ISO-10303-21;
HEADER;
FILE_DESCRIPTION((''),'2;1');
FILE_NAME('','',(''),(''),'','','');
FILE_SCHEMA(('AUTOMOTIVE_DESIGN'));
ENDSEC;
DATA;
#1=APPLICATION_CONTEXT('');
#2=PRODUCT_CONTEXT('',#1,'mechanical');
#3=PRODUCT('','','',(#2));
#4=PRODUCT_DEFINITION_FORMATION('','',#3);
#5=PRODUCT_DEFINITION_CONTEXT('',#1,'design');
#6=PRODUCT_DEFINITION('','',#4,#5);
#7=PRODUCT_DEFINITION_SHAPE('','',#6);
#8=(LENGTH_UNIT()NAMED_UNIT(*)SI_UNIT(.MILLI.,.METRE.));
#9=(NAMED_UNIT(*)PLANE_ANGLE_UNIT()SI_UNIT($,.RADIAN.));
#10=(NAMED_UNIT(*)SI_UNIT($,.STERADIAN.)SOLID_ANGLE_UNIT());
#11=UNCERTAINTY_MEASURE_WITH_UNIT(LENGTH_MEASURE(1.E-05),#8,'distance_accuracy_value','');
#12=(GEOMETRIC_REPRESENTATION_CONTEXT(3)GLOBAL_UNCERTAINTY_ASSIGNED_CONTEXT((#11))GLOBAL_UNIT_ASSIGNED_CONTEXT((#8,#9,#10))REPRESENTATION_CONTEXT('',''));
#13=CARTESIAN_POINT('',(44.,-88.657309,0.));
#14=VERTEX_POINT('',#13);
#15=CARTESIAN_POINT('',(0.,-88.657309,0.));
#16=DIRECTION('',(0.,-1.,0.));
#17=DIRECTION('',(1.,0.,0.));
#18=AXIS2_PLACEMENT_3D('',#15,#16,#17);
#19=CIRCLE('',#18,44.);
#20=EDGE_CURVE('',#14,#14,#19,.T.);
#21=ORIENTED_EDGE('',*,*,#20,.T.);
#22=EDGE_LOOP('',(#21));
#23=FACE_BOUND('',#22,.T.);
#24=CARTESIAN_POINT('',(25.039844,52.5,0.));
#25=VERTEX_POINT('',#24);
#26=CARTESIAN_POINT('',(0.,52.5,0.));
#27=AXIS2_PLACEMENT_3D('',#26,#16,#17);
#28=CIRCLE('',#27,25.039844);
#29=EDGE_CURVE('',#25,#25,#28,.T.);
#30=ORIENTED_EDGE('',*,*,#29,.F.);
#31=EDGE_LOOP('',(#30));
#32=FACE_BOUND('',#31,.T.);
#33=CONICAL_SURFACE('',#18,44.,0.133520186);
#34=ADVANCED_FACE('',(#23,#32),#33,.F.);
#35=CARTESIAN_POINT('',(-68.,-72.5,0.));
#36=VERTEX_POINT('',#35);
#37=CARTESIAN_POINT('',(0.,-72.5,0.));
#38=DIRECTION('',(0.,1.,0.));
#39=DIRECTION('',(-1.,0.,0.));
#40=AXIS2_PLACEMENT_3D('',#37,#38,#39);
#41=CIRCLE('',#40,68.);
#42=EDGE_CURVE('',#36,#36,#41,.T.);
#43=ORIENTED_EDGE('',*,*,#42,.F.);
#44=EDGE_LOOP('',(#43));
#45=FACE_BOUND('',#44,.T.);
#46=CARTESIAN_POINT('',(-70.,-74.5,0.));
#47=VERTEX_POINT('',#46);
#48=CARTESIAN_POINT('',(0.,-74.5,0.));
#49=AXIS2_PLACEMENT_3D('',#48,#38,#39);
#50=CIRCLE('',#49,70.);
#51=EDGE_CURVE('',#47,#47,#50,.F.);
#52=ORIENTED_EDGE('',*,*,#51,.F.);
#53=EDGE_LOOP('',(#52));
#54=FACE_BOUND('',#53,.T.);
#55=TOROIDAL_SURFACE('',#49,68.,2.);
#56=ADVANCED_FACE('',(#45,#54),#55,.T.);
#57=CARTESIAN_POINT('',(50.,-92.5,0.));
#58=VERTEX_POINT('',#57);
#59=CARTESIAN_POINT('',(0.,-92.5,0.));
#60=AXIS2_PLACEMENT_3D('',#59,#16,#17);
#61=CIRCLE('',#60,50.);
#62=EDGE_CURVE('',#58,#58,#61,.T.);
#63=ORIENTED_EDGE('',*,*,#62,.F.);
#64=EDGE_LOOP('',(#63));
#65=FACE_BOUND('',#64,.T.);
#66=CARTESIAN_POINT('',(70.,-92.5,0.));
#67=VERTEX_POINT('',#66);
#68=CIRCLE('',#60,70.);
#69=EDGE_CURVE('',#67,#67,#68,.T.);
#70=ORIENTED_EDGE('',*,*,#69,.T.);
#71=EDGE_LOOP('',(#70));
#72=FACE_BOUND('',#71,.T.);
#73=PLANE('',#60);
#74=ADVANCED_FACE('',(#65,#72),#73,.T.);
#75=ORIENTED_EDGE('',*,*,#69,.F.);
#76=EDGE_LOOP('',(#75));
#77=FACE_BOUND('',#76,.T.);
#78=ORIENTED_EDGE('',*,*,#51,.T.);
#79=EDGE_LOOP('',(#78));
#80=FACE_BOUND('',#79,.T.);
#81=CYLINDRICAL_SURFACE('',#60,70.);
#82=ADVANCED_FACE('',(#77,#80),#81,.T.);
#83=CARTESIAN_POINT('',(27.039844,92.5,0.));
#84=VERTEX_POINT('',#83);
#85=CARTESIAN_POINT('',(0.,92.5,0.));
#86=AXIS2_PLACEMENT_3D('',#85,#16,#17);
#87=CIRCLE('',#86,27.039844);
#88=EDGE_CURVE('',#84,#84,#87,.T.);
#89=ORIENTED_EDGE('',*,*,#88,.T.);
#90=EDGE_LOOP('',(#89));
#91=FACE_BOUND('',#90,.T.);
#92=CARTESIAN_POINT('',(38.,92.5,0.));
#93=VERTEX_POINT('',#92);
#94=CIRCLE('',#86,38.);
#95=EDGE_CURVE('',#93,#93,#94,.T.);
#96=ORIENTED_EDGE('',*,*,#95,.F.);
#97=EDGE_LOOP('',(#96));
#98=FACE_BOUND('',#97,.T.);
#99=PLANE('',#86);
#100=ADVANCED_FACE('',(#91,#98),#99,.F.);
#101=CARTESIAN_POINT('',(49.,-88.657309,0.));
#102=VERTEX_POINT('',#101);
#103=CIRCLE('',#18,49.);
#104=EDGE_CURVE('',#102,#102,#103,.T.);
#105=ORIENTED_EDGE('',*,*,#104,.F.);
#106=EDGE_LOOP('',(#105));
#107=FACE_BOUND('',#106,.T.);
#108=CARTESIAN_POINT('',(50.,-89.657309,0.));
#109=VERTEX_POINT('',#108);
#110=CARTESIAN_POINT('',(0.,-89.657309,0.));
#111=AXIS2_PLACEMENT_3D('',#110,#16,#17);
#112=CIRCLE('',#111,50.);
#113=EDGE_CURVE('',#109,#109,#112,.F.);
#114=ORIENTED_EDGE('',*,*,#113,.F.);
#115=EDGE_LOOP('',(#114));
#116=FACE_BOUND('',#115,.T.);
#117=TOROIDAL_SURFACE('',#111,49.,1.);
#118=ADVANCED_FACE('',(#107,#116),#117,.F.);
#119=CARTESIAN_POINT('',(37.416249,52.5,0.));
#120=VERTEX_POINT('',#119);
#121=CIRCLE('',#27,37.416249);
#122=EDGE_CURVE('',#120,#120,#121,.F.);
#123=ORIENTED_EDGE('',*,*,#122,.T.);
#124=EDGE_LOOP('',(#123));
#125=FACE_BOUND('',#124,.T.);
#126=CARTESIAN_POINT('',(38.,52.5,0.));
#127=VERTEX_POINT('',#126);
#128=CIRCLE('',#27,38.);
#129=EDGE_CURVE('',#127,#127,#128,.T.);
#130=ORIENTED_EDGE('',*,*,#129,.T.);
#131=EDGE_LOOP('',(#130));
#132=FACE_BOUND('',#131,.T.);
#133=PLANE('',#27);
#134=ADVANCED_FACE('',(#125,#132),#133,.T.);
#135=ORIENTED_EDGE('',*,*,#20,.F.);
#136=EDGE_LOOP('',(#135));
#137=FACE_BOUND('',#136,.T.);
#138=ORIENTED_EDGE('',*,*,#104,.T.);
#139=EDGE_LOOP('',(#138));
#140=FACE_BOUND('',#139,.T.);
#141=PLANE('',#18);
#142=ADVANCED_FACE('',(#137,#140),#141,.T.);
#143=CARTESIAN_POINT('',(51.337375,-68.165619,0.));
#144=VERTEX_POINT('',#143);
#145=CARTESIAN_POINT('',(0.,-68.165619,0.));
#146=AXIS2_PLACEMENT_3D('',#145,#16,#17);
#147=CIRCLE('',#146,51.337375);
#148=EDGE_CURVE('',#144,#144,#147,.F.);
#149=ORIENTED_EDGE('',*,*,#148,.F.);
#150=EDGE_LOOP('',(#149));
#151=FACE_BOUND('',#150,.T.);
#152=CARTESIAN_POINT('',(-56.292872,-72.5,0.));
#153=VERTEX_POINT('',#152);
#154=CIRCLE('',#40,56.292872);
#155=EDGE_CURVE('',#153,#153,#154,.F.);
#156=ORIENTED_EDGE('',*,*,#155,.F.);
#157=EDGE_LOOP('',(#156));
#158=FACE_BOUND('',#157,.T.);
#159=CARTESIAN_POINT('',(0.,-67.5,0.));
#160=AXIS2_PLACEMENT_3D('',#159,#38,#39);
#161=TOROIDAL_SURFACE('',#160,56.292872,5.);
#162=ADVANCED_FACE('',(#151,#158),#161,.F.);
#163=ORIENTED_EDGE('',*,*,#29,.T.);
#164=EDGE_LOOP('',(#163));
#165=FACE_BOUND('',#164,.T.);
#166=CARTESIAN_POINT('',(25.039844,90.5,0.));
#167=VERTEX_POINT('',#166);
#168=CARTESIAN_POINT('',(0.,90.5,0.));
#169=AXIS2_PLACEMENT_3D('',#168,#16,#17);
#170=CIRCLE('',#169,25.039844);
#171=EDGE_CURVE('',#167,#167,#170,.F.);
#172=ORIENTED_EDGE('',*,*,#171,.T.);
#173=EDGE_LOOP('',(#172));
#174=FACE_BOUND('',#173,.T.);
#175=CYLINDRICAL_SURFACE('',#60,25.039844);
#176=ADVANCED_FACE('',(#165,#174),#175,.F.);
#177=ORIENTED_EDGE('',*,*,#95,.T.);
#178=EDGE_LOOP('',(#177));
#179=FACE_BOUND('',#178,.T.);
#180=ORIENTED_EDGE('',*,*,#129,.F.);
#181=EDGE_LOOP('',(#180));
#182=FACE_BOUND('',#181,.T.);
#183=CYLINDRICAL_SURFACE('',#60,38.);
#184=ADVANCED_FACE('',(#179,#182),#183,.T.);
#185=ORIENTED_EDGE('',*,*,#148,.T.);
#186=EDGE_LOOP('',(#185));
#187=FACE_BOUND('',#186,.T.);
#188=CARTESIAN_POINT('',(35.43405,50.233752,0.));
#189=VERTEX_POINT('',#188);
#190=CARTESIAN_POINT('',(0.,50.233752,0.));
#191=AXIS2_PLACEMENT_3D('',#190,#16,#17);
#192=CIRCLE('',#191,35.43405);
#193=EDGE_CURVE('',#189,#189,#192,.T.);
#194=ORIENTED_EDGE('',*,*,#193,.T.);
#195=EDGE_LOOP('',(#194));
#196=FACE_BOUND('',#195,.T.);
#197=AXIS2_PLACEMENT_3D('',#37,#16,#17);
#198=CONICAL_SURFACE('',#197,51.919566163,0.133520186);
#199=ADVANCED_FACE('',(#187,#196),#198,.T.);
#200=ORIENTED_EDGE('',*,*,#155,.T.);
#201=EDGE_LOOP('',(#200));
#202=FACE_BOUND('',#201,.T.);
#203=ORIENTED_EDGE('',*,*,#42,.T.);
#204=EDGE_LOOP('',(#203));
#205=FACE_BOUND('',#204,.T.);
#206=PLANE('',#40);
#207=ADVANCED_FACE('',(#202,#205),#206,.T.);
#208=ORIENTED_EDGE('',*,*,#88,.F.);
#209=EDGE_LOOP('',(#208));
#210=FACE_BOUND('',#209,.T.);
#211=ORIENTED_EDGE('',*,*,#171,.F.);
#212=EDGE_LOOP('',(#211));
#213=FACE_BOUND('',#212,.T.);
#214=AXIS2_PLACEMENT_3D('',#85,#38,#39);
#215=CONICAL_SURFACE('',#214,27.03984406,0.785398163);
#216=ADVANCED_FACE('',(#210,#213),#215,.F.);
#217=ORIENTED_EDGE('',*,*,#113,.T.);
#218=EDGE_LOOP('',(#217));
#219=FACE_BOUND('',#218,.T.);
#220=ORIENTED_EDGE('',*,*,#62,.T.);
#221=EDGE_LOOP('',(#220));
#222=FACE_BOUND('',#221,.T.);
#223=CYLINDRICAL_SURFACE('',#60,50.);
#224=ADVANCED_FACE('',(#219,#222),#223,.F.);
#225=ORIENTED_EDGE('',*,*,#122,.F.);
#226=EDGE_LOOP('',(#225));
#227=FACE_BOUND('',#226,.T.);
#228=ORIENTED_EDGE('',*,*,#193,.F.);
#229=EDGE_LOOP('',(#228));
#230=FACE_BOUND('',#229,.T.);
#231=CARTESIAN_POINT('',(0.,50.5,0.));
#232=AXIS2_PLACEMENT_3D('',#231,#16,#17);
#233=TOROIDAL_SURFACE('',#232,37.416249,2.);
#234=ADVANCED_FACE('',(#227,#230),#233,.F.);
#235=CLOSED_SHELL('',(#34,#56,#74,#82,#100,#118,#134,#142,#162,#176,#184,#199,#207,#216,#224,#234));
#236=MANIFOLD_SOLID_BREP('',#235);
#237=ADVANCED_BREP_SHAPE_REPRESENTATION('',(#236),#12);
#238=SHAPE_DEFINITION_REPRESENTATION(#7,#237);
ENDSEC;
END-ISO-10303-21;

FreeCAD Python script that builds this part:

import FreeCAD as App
import Part
import Sketcher

V = App.Vector
Q = App.Units.Quantity


def edges_at(feature, points):
    """Names of the edges that pass closest to the given points."""
    edges = feature.Shape.Edges
    near = lambda p: min(range(len(edges)), key=lambda i: edges[i].distToShape(Part.Vertex(*p))[0])
    return sorted({f"Edge{near(p) + 1}" for p in points})


def add_polygon(sketch, points):
    """Adds a closed chain of lines whose ends are joined by coincident constraints."""
    first, n = sketch.GeometryCount, len(points)
    for a, b in zip(points, points[1:] + points[:1]):
        sketch.addGeometry(Part.LineSegment(App.Vector(*a, 0), App.Vector(*b, 0)), False)
    for i in range(n):
        sketch.addConstraint(Sketcher.Constraint("Coincident", first + i, 2, first + (i + 1) % n, 1))

doc = App.newDocument("Part")
params = doc.addObject("Spreadsheet::Sheet", "Params")
for row, (alias, value) in enumerate([
    ("sketch1_width", "20 mm"),
    ("sketch1_width2", "6 mm"),
    ("sketch1_height", "40 mm"),
    ("revolution_angle", "360 deg"),
    ("fillet_radius", "5 mm"),
    ("chamfer_size", "2 mm"),
    ("fillet2_radius", "1 mm"),
    ("fillet3_radius", "2 mm"),
    ("fillet4_radius", "2 mm"),
], start=1):
    params.set(f"A{row}", alias)
    params.set(f"B{row}", "=" + value)
    params.setAlias(f"B{row}", alias)

body = doc.addObject("PartDesign::Body", "Body")

sketch1 = body.newObject("Sketcher::SketchObject", "Sketch")
sketch1.AttachmentSupport = (doc.getObject("XY_Plane"), [""])
sketch1.MapMode = "FlatFace"
add_polygon(sketch1, [(50, -88.7), (50, -92.5), (70, -92.5), (70, -72.5), (51.9, -72.5), (35.1, 52.5), (38, 52.5), (38, 92.5), (25, 92.5), (25, 52.5), (44, -88.7)])
sketch1.addConstraint([
    Sketcher.Constraint("Vertical", 0),
    Sketcher.Constraint("Horizontal", 1),
    Sketcher.Constraint("Vertical", 2),
    Sketcher.Constraint("Horizontal", 3),
    Sketcher.Constraint("Horizontal", 5),
    Sketcher.Constraint("Vertical", 6),
    Sketcher.Constraint("Horizontal", 7),
    Sketcher.Constraint("Vertical", 8),
    Sketcher.Constraint("Horizontal", 10),
    Sketcher.Constraint("Parallel", 4, 9),
    Sketcher.Constraint("Horizontal", 5, 2, 8, 2),
    Sketcher.Constraint("Equal", 1, 2),
    Sketcher.Constraint("DistanceX", 1, 1, 1, 2, Q("20 mm")),
    Sketcher.Constraint("DistanceX", 10, 1, 10, 2, Q("6 mm")),
    Sketcher.Constraint("DistanceY", 6, 1, 6, 2, Q("40 mm")),
    Sketcher.Constraint("DistanceX", -1, 1, 0, 2, Q("50 mm")),
    Sketcher.Constraint("DistanceX", -1, 1, 5, 2, Q("38 mm")),
    Sketcher.Constraint("DistanceY", 3, 2, 4, 2, Q("125 mm")),
    Sketcher.Constraint("DistanceY", 0, 2, -1, 1, Q("92.5 mm")),
    Sketcher.Constraint("DistanceX", 5, 1, 5, 2, Q("2.870351 mm")),
    Sketcher.Constraint("DistanceY", 0, 2, 0, 1, Q("3.842691 mm")),
    Sketcher.Constraint("DistanceX", 3, 2, 3, 1, Q("18.080434 mm")),
])
sketch1.setExpression("Constraints[23]", "Params.sketch1_width")
sketch1.setExpression("Constraints[24]", "Params.sketch1_width2")
sketch1.setExpression("Constraints[25]", "Params.sketch1_height")
revolution = body.newObject("PartDesign::Revolution", "Revolution")
revolution.Profile = sketch1
revolution.ReferenceAxis = (sketch1, ["V_Axis"])
revolution.setExpression("Angle", "Params.revolution_angle")
doc.recompute()

fillet = body.newObject("PartDesign::Fillet", "Fillet")
fillet.Base = (revolution, edges_at(revolution, [(-51.92, -72.5, 0)]))
fillet.setExpression("Radius", "Params.fillet_radius")
doc.recompute()

chamfer = body.newObject("PartDesign::Chamfer", "Chamfer")
chamfer.Base = (fillet, edges_at(fillet, [(-25.04, 92.5, 0)]))
chamfer.setExpression("Size", "Params.chamfer_size")
doc.recompute()

fillet2 = body.newObject("PartDesign::Fillet", "Fillet001")
fillet2.Base = (chamfer, edges_at(chamfer, [(-50, -88.657, 0)]))
fillet2.setExpression("Radius", "Params.fillet2_radius")
doc.recompute()

fillet3 = body.newObject("PartDesign::Fillet", "Fillet002")
fillet3.Base = (fillet2, edges_at(fillet2, [(-70, -72.5, 0)]))
fillet3.setExpression("Radius", "Params.fillet3_radius")
doc.recompute()

fillet4 = body.newObject("PartDesign::Fillet", "Fillet003")
fillet4.Base = (fillet3, edges_at(fillet3, [(-35.13, 52.5, 0)]))
fillet4.setExpression("Radius", "Params.fillet4_radius")

doc.recompute()
